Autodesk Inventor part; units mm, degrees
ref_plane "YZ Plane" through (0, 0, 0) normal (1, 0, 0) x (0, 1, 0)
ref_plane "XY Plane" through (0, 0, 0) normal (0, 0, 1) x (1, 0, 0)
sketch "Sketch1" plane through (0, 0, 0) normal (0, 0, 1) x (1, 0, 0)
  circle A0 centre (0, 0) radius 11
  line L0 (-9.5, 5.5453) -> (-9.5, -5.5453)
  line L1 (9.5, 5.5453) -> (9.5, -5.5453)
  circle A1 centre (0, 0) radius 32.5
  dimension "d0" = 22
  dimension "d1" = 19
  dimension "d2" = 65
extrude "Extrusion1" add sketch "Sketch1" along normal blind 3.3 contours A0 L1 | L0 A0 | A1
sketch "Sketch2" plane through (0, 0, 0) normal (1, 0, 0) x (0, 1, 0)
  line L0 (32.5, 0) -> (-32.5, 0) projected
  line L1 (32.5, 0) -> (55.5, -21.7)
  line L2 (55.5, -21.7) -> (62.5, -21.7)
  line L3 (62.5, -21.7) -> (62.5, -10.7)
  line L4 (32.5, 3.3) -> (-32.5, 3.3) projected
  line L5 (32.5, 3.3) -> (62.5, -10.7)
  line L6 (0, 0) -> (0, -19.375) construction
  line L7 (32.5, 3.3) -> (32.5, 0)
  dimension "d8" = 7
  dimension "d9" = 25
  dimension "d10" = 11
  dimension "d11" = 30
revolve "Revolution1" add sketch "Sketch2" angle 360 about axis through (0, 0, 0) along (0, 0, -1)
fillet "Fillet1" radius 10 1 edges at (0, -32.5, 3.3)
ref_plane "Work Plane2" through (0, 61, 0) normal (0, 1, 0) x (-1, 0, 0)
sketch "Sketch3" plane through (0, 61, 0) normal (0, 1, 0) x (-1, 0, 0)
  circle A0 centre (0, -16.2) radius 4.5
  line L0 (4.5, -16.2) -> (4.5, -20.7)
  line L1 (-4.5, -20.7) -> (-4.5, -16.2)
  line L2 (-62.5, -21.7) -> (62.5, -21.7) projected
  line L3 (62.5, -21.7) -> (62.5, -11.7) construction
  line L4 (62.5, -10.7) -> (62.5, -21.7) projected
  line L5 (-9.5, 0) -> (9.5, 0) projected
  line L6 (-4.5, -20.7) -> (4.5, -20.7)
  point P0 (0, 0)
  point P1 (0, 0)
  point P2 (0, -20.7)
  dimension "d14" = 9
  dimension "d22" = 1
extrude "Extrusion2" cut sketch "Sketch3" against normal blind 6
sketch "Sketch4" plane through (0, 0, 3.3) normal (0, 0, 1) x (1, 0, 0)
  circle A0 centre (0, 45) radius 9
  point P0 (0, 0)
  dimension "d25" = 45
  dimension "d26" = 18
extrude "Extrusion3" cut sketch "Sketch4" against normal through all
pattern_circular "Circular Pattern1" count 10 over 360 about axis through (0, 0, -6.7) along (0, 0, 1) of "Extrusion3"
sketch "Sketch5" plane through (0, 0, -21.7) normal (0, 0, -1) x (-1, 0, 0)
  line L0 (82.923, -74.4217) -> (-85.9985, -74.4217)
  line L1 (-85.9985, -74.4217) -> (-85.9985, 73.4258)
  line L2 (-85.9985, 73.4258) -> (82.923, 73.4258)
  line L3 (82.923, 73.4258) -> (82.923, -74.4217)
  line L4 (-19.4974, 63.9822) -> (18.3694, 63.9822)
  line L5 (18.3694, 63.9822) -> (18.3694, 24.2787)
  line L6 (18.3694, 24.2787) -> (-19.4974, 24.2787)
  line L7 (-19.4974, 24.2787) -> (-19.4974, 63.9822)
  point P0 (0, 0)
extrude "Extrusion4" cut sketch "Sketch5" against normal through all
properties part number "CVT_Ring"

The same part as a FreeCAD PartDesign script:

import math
import FreeCAD as App
import Part
import Sketcher
from FreeCAD import Vector
Q = App.Units.Quantity


def edges_at(feature, points):
    """Names of the edges that pass closest to the given points."""
    edges = feature.Shape.Edges
    near = lambda p: min(range(len(edges)), key=lambda i: edges[i].distToShape(Part.Vertex(*p))[0])
    return sorted({f"Edge{near(p) + 1}" for p in points})

doc = App.newDocument("Part")
body = doc.addObject("PartDesign::Body", "Body")

# Sketch on XY plane
sketch1 = body.newObject("Sketcher::SketchObject", "Sketch")
sketch1.AttachmentSupport = (doc.getObject("XY_Plane"), [""])
sketch1.MapMode = "FlatFace"
sketch1.addGeometry([
    Part.Circle(Vector(0, 0, 0), Vector(0, 0, 1), 32.5),  # 0
    Part.LineSegment(Vector(9.5, 5.5453, 0), Vector(9.5, -5.5453, 0)),  # 1
    Part.ArcOfCircle(Part.Circle(Vector(0, 0, 0), Vector(0, 0, 1), 11), math.radians(-149.727216), math.radians(-30.272784)),  # 2
    Part.LineSegment(Vector(-9.5, -5.5453, 0), Vector(-9.5, 5.5453, 0)),  # 3
    Part.ArcOfCircle(Part.Circle(Vector(0, 0, 0), Vector(0, 0, 1), 11), math.radians(30.272784), math.radians(149.727216)),  # 4
], False)
sketch1.addConstraint([
    Sketcher.Constraint("Coincident", 1, 2, 2, 2),
    Sketcher.Constraint("Coincident", 2, 1, 3, 1),
    Sketcher.Constraint("Coincident", 3, 2, 4, 2),
    Sketcher.Constraint("Coincident", 4, 1, 1, 1),
    Sketcher.Constraint("Vertical", 1),
    Sketcher.Constraint("Vertical", 3),
    Sketcher.Constraint("Coincident", 0, 3, -1, 1),
    Sketcher.Constraint("Coincident", 2, 3, -1, 1),
    Sketcher.Constraint("Coincident", 4, 3, -1, 1),
    Sketcher.Constraint("Equal", 2, 4),
    Sketcher.Constraint("Horizontal", 1, 2, 2, 1),
    Sketcher.Constraint("Diameter", 0, Q("65 mm")),
    Sketcher.Constraint("Radius", 2, Q("11 mm")),
    Sketcher.Constraint("DistanceX", 2, 1, 1, 2, Q("19 mm")),
])
pad1 = body.newObject("PartDesign::Pad", "Pad")
pad1.Profile = sketch1
pad1.Length = 3.3

# Sketch on YZ plane
sketch2 = body.newObject("Sketcher::SketchObject", "Sketch001")
sketch2.AttachmentSupport = (doc.getObject("YZ_Plane"), [""])
sketch2.MapMode = "FlatFace"
sketch2.addGeometry([
    Part.LineSegment(Vector(32.5, 3.3, 0), Vector(32.5, 0, 0)),  # 0
    Part.LineSegment(Vector(32.5, 0, 0), Vector(55.5, -21.7, 0)),  # 1
    Part.LineSegment(Vector(55.5, -21.7, 0), Vector(62.5, -21.7, 0)),  # 2
    Part.LineSegment(Vector(62.5, -21.7, 0), Vector(62.5, -10.7, 0)),  # 3
    Part.LineSegment(Vector(62.5, -10.7, 0), Vector(32.5, 3.3, 0)),  # 4
], False)
sketch2.addConstraint([
    Sketcher.Constraint("Coincident", 0, 2, 1, 1),
    Sketcher.Constraint("Coincident", 1, 2, 2, 1),
    Sketcher.Constraint("Coincident", 2, 2, 3, 1),
    Sketcher.Constraint("Coincident", 3, 2, 4, 1),
    Sketcher.Constraint("Coincident", 4, 2, 0, 1),
    Sketcher.Constraint("Vertical", 0),
    Sketcher.Constraint("Horizontal", 2),
    Sketcher.Constraint("Vertical", 3),
    Sketcher.Constraint("PointOnObject", 0, 2, -1),
    Sketcher.Constraint("DistanceX", 2, 1, 2, 2, Q("7 mm")),
    Sketcher.Constraint("DistanceY", 3, 1, 3, 2, Q("11 mm")),
    Sketcher.Constraint("DistanceX", 0, 2, 2, 2, Q("30 mm")),
    Sketcher.Constraint("DistanceY", 1, 2, 4, 2, Q("25 mm")),
    Sketcher.Constraint("DistanceY", 0, 2, 0, 1, Q("3.3 mm")),
    Sketcher.Constraint("DistanceX", -1, 1, 0, 2, Q("32.5 mm")),
])
revolution = body.newObject("PartDesign::Revolution", "Revolution")
revolution.Profile = sketch2
revolution.ReferenceAxis = (sketch2, ["V_Axis"])
revolution.Angle = 360
doc.recompute()

fillet = body.newObject("PartDesign::Fillet", "Fillet")
fillet.Base = (revolution, edges_at(revolution, [(0, -32.5, 3.3)]))
fillet.Radius = 10

# Sketch on XZ plane
sketch3 = body.newObject("Sketcher::SketchObject", "Sketch002")
sketch3.AttachmentSupport = (doc.getObject("XZ_Plane"), [""])
sketch3.MapMode = "FlatFace"
sketch3.AttachmentOffset = App.Placement(Vector(0, 0, -61), App.Rotation())
sketch3.addGeometry([
    Part.ArcOfCircle(Part.Circle(Vector(0, -16.2, 0), Vector(0, 0, 1), 4.5), math.radians(0), math.radians(180)),
    Part.LineSegment(Vector(4.5, -16.2, 0), Vector(4.5, -20.7, 0)),
    Part.LineSegment(Vector(4.5, -20.7, 0), Vector(-4.5, -20.7, 0)),
    Part.LineSegment(Vector(-4.5, -20.7, 0), Vector(-4.5, -16.2, 0)),
], False)
sketch3.addConstraint([
    Sketcher.Constraint("Tangent", 0, 1, 1, 1),
    Sketcher.Constraint("Coincident", 1, 2, 2, 1),
    Sketcher.Constraint("Coincident", 2, 2, 3, 1),
    Sketcher.Constraint("Tangent", 3, 2, 0, 2),
    Sketcher.Constraint("Vertical", 1),
    Sketcher.Constraint("Horizontal", 2),
    Sketcher.Constraint("Vertical", 3),
    Sketcher.Constraint("PointOnObject", 0, 3, -2),
    Sketcher.Constraint("Radius", 0, Q("4.5 mm")),
    Sketcher.Constraint("DistanceY", 1, 2, 1, 1, Q("4.5 mm")),
    Sketcher.Constraint("DistanceY", 0, 3, -1, 1, Q("16.2 mm")),
])
pocket1 = body.newObject("PartDesign::Pocket", "Pocket")
pocket1.Profile = sketch3
pocket1.Length = 6
pocket1.Reversed = True

# Sketch on XY plane
sketch4 = body.newObject("Sketcher::SketchObject", "Sketch003")
sketch4.AttachmentSupport = (doc.getObject("XY_Plane"), [""])
sketch4.MapMode = "FlatFace"
sketch4.AttachmentOffset = App.Placement(Vector(0, 0, 3.3), App.Rotation())
sketch4.addGeometry(Part.Circle(Vector(0, 45, 0), Vector(0, 0, 1), 9), False)
sketch4.addConstraint([
    Sketcher.Constraint("PointOnObject", 0, 3, -2),
    Sketcher.Constraint("Diameter", 0, Q("18 mm")),
    Sketcher.Constraint("DistanceY", -1, 1, 0, 3, Q("45 mm")),
])
pocket2 = body.newObject("PartDesign::Pocket", "Pocket001")
pocket2.Profile = sketch4
pocket2.Type = "ThroughAll"
doc.recompute()

polarpattern = body.newObject("PartDesign::PolarPattern", "PolarPattern")
polarpattern.Originals = [pocket2]
polarpattern.Axis = (doc.getObject("Z_Axis"), [""])
polarpattern.Angle = 360
polarpattern.Occurrences = 10
body.Tip = polarpattern

# Sketch on XY plane
sketch5 = body.newObject("Sketcher::SketchObject", "Sketch004")
sketch5.AttachmentSupport = (doc.getObject("XY_Plane"), [""])
sketch5.MapMode = "FlatFace"
sketch5.AttachmentOffset = App.Placement(Vector(0, 0, -21.7), App.Rotation())
sketch5.addGeometry([
    Part.LineSegment(Vector(85.9985, -74.4217, 0), Vector(-82.923, -74.4217, 0)),  # 0
    Part.LineSegment(Vector(-82.923, -74.4217, 0), Vector(-82.923, 73.4258, 0)),  # 1
    Part.LineSegment(Vector(-82.923, 73.4258, 0), Vector(85.9985, 73.4258, 0)),  # 2
    Part.LineSegment(Vector(85.9985, 73.4258, 0), Vector(85.9985, -74.4217, 0)),  # 3
    Part.LineSegment(Vector(19.4974, 24.2787, 0), Vector(19.4974, 63.9822, 0)),  # 4
    Part.LineSegment(Vector(19.4974, 63.9822, 0), Vector(-18.3694, 63.9822, 0)),  # 5
    Part.LineSegment(Vector(-18.3694, 63.9822, 0), Vector(-18.3694, 24.2787, 0)),  # 6
    Part.LineSegment(Vector(-18.3694, 24.2787, 0), Vector(19.4974, 24.2787, 0)),  # 7
], False)
sketch5.addConstraint([
    Sketcher.Constraint("Coincident", 0, 2, 1, 1),
    Sketcher.Constraint("Coincident", 1, 2, 2, 1),
    Sketcher.Constraint("Coincident", 2, 2, 3, 1),
    Sketcher.Constraint("Coincident", 3, 2, 0, 1),
    Sketcher.Constraint("Coincident", 4, 2, 5, 1),
    Sketcher.Constraint("Coincident", 5, 2, 6, 1),
    Sketcher.Constraint("Coincident", 6, 2, 7, 1),
    Sketcher.Constraint("Coincident", 7, 2, 4, 1),
    Sketcher.Constraint("Horizontal", 0),
    Sketcher.Constraint("Vertical", 1),
    Sketcher.Constraint("Horizontal", 2),
    Sketcher.Constraint("Vertical", 3),
    Sketcher.Constraint("Vertical", 4),
    Sketcher.Constraint("Horizontal", 5),
    Sketcher.Constraint("Vertical", 6),
    Sketcher.Constraint("Horizontal", 7),
    Sketcher.Constraint("DistanceX", 0, 2, 0, 1, Q("168.9215 mm")),
    Sketcher.Constraint("DistanceX", 5, 2, 5, 1, Q("37.8668 mm")),
    Sketcher.Constraint("DistanceY", 1, 1, 1, 2, Q("147.8475 mm")),
    Sketcher.Constraint("DistanceY", 4, 1, 4, 2, Q("39.7035 mm")),
    Sketcher.Constraint("DistanceX", 0, 2, -1, 1, Q("82.923 mm")),
    Sketcher.Constraint("DistanceX", 4, 2, 2, 2, Q("66.501 mm")),
    Sketcher.Constraint("DistanceY", 3, 2, 4, 2, Q("138.404 mm")),
    Sketcher.Constraint("DistanceY", 0, 2, -1, 1, Q("74.4217 mm")),
])
pocket3 = body.newObject("PartDesign::Pocket", "Pocket002")
pocket3.Profile = sketch5
pocket3.Type = "ThroughAll"
pocket3.Reversed = True

doc.recompute()
